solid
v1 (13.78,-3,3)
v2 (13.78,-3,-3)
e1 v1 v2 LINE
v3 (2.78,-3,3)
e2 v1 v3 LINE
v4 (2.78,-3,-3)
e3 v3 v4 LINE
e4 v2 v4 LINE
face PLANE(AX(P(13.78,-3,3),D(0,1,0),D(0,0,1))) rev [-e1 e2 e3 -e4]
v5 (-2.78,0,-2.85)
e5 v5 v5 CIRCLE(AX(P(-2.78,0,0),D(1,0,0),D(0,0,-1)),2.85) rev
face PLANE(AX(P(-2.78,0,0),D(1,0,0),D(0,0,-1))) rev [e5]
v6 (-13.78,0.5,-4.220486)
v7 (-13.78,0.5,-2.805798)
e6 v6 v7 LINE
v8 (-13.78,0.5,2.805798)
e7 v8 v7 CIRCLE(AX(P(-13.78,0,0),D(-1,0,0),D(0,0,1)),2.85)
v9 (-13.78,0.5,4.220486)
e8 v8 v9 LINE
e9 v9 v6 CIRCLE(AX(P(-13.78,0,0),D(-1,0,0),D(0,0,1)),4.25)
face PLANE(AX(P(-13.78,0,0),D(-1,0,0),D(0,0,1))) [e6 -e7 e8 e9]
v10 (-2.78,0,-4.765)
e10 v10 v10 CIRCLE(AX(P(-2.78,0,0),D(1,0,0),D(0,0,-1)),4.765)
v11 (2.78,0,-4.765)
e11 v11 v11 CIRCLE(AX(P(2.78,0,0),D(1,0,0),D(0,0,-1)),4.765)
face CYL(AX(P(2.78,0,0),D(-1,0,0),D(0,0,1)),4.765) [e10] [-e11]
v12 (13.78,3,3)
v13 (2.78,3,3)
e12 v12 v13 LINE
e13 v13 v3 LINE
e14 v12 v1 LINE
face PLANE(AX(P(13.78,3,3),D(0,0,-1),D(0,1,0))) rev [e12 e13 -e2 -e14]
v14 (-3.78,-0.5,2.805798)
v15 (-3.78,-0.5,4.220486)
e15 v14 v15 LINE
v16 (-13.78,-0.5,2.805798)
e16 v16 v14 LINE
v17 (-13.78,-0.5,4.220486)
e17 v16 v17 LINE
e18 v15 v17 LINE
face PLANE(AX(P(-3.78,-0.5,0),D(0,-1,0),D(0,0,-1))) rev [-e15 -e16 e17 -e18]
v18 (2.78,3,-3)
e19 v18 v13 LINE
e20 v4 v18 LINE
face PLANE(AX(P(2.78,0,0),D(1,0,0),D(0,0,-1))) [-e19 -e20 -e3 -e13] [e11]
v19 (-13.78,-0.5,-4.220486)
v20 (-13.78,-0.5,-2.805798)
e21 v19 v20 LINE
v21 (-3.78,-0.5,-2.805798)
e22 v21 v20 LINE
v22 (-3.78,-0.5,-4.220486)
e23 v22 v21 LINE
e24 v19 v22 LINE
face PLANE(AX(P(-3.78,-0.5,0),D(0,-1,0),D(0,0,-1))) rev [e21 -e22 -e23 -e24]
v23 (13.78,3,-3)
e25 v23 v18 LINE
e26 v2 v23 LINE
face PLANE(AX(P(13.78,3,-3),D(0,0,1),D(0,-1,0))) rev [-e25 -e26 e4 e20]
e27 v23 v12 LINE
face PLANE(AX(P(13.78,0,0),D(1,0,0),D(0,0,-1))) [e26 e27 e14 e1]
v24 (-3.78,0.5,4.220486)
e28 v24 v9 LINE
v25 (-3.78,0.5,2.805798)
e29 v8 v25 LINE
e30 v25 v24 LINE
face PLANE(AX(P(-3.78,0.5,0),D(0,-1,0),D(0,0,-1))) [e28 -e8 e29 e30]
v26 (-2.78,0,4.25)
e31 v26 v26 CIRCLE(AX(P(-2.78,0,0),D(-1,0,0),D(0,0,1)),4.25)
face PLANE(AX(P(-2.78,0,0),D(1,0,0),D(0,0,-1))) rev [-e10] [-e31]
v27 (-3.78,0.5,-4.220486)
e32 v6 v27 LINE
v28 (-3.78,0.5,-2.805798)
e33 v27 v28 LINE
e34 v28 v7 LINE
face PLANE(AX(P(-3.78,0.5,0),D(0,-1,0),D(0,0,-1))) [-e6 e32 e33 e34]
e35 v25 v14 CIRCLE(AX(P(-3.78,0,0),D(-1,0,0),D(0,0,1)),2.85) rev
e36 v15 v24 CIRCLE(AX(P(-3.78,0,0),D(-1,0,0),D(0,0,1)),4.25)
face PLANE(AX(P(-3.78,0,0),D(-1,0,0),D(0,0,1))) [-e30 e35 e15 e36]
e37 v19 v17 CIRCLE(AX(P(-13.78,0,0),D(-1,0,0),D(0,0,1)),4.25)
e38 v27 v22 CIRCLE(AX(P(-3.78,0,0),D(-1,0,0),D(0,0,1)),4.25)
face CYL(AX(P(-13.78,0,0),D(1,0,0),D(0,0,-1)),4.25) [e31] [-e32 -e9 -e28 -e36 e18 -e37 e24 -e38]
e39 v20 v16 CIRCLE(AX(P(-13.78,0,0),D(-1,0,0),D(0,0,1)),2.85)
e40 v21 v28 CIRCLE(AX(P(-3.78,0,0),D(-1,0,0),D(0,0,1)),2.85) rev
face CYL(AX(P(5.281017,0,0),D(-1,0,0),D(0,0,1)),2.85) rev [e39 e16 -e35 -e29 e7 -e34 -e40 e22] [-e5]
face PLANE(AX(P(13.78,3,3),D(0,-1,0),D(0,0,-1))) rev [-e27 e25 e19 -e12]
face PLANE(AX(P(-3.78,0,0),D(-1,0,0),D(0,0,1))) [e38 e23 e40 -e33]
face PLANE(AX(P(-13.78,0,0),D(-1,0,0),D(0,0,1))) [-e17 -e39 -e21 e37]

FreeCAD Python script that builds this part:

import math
import FreeCAD as App
import Part
import Sketcher
from FreeCAD import Vector

doc = App.newDocument("Part")
body = doc.addObject("PartDesign::Body", "Body")

# Sketch on YZ plane
sketch1 = body.newObject("Sketcher::SketchObject", "Sketch")
sketch1.AttachmentSupport = (doc.getObject("YZ_Plane"), [""])
sketch1.MapMode = "FlatFace"
sketch1.addGeometry(Part.Circle(Vector(0, 0, 0), Vector(0, 0, 1), 4.8), False)
sketch1.addConstraint(Sketcher.Constraint("Coincident", 0, 3, -1, 1))
sketch1.addConstraint(Sketcher.Constraint("Diameter", 0, 9.53))
pad1 = body.newObject("PartDesign::Pad", "Pad")
pad1.Profile = sketch1
pad1.Length = 5.56
pad1.Midplane = True

# Sketch on YZ plane
sketch2 = body.newObject("Sketcher::SketchObject", "Sketch001")
sketch2.AttachmentSupport = (doc.getObject("YZ_Plane"), [""])
sketch2.MapMode = "FlatFace"
sketch2.AttachmentOffset = App.Placement(Vector(0, 0, -2.78), App.Rotation())
sketch2.addGeometry(Part.Circle(Vector(0, 0, 0), Vector(0, 0, 1), 4.2), False)
sketch2.addConstraint(Sketcher.Constraint("Coincident", 0, 3, -1, 1))
sketch2.addConstraint(Sketcher.Constraint("Diameter", 0, 8.5))
pad2 = body.newObject("PartDesign::Pad", "Pad001")
pad2.Profile = sketch2
pad2.Length = 11
pad2.Reversed = True

# Sketch on YZ plane
sketch3 = body.newObject("Sketcher::SketchObject", "Sketch002")
sketch3.AttachmentSupport = (doc.getObject("YZ_Plane"), [""])
sketch3.MapMode = "FlatFace"
sketch3.AttachmentOffset = App.Placement(Vector(0, 0, 2.78), App.Rotation())
sketch3.addGeometry(Part.LineSegment(Vector(3, 3, 0), Vector(-3, 3, 0)), False)
sketch3.addGeometry(Part.LineSegment(Vector(-3, 3, 0), Vector(-3, -3, 0)), False)
sketch3.addGeometry(Part.LineSegment(Vector(-3, -3, 0), Vector(3, -3, 0)), False)
sketch3.addGeometry(Part.LineSegment(Vector(3, -3, 0), Vector(3, 3, 0)), False)
sketch3.addConstraint(Sketcher.Constraint("Coincident", 0, 2, 1, 1))
sketch3.addConstraint(Sketcher.Constraint("Coincident", 1, 2, 2, 1))
sketch3.addConstraint(Sketcher.Constraint("Coincident", 2, 2, 3, 1))
sketch3.addConstraint(Sketcher.Constraint("Coincident", 3, 2, 0, 1))
sketch3.addConstraint(Sketcher.Constraint("Horizontal", 0))
sketch3.addConstraint(Sketcher.Constraint("Vertical", 1))
sketch3.addConstraint(Sketcher.Constraint("Horizontal", 2))
sketch3.addConstraint(Sketcher.Constraint("Vertical", 3))
sketch3.addConstraint(Sketcher.Constraint("Symmetric", 0, 2, 2, 2, -1, 1))
sketch3.addConstraint(Sketcher.Constraint("Equal", 2, 1))
sketch3.addConstraint(Sketcher.Constraint("DistanceX", 0, 2, 0, 1, 6.0))
pad3 = body.newObject("PartDesign::Pad", "Pad002")
pad3.Profile = sketch3
pad3.Length = 11

# Sketch on YZ plane
sketch4 = body.newObject("Sketcher::SketchObject", "Sketch003")
sketch4.AttachmentSupport = (doc.getObject("YZ_Plane"), [""])
sketch4.MapMode = "FlatFace"
sketch4.AttachmentOffset = App.Placement(Vector(0, 0, -13.78), App.Rotation())
sketch4.addGeometry(Part.Circle(Vector(0, 0, 0), Vector(0, 0, 1), 2.9), False)
sketch4.addConstraint(Sketcher.Constraint("Coincident", 0, 3, -1, 1))
sketch4.addConstraint(Sketcher.Constraint("Diameter", 0, 5.7))
pocket1 = body.newObject("PartDesign::Pocket", "Pocket")
pocket1.Profile = sketch4
pocket1.Length = 11
pocket1.Reversed = True

# Sketch on YZ plane
sketch5 = body.newObject("Sketcher::SketchObject", "Sketch004")
sketch5.AttachmentSupport = (doc.getObject("YZ_Plane"), [""])
sketch5.MapMode = "FlatFace"
sketch5.AttachmentOffset = App.Placement(Vector(0, 0, -3.78), App.Rotation())
sketch5.addGeometry(Part.ArcOfCircle(Part.Circle(Vector(0, 0, 0), Vector(0, 0, 1), 4.8), math.radians(-96.02), math.radians(-83.98)), False)
sketch5.addGeometry(Part.LineSegment(Vector(-0.5, -4.7, 0), Vector(-0.5, 4.7, 0)), False)
sketch5.addGeometry(Part.ArcOfCircle(Part.Circle(Vector(0, 0, 0), Vector(0, 0, 1), 4.8), math.radians(83.98), math.radians(96.02)), False)
sketch5.addGeometry(Part.LineSegment(Vector(0.5, 4.7, 0), Vector(0.5, -4.7, 0)), False)
sketch5.addConstraint(Sketcher.Constraint("Coincident", 0, 1, 1, 1))
sketch5.addConstraint(Sketcher.Constraint("Coincident", 1, 2, 2, 2))
sketch5.addConstraint(Sketcher.Constraint("Coincident", 2, 1, 3, 1))
sketch5.addConstraint(Sketcher.Constraint("Coincident", 3, 2, 0, 2))
sketch5.addConstraint(Sketcher.Constraint("Vertical", 1))
sketch5.addConstraint(Sketcher.Constraint("Vertical", 3))
sketch5.addConstraint(Sketcher.Constraint("Coincident", 0, 3, -1, 1))
sketch5.addConstraint(Sketcher.Constraint("Coincident", 2, 3, -1, 1))
sketch5.addConstraint(Sketcher.Constraint("Equal", 0, 2))
sketch5.addConstraint(Sketcher.Constraint("Horizontal", 1, 2, 2, 1))
sketch5.addConstraint(Sketcher.Constraint("Radius", 0, 4.765))
sketch5.addConstraint(Sketcher.Constraint("DistanceX", 1, 2, 2, 1, 1.0))
pocket2 = body.newObject("PartDesign::Pocket", "Pocket001")
pocket2.Profile = sketch5
pocket2.Length = 10

doc.recompute()
